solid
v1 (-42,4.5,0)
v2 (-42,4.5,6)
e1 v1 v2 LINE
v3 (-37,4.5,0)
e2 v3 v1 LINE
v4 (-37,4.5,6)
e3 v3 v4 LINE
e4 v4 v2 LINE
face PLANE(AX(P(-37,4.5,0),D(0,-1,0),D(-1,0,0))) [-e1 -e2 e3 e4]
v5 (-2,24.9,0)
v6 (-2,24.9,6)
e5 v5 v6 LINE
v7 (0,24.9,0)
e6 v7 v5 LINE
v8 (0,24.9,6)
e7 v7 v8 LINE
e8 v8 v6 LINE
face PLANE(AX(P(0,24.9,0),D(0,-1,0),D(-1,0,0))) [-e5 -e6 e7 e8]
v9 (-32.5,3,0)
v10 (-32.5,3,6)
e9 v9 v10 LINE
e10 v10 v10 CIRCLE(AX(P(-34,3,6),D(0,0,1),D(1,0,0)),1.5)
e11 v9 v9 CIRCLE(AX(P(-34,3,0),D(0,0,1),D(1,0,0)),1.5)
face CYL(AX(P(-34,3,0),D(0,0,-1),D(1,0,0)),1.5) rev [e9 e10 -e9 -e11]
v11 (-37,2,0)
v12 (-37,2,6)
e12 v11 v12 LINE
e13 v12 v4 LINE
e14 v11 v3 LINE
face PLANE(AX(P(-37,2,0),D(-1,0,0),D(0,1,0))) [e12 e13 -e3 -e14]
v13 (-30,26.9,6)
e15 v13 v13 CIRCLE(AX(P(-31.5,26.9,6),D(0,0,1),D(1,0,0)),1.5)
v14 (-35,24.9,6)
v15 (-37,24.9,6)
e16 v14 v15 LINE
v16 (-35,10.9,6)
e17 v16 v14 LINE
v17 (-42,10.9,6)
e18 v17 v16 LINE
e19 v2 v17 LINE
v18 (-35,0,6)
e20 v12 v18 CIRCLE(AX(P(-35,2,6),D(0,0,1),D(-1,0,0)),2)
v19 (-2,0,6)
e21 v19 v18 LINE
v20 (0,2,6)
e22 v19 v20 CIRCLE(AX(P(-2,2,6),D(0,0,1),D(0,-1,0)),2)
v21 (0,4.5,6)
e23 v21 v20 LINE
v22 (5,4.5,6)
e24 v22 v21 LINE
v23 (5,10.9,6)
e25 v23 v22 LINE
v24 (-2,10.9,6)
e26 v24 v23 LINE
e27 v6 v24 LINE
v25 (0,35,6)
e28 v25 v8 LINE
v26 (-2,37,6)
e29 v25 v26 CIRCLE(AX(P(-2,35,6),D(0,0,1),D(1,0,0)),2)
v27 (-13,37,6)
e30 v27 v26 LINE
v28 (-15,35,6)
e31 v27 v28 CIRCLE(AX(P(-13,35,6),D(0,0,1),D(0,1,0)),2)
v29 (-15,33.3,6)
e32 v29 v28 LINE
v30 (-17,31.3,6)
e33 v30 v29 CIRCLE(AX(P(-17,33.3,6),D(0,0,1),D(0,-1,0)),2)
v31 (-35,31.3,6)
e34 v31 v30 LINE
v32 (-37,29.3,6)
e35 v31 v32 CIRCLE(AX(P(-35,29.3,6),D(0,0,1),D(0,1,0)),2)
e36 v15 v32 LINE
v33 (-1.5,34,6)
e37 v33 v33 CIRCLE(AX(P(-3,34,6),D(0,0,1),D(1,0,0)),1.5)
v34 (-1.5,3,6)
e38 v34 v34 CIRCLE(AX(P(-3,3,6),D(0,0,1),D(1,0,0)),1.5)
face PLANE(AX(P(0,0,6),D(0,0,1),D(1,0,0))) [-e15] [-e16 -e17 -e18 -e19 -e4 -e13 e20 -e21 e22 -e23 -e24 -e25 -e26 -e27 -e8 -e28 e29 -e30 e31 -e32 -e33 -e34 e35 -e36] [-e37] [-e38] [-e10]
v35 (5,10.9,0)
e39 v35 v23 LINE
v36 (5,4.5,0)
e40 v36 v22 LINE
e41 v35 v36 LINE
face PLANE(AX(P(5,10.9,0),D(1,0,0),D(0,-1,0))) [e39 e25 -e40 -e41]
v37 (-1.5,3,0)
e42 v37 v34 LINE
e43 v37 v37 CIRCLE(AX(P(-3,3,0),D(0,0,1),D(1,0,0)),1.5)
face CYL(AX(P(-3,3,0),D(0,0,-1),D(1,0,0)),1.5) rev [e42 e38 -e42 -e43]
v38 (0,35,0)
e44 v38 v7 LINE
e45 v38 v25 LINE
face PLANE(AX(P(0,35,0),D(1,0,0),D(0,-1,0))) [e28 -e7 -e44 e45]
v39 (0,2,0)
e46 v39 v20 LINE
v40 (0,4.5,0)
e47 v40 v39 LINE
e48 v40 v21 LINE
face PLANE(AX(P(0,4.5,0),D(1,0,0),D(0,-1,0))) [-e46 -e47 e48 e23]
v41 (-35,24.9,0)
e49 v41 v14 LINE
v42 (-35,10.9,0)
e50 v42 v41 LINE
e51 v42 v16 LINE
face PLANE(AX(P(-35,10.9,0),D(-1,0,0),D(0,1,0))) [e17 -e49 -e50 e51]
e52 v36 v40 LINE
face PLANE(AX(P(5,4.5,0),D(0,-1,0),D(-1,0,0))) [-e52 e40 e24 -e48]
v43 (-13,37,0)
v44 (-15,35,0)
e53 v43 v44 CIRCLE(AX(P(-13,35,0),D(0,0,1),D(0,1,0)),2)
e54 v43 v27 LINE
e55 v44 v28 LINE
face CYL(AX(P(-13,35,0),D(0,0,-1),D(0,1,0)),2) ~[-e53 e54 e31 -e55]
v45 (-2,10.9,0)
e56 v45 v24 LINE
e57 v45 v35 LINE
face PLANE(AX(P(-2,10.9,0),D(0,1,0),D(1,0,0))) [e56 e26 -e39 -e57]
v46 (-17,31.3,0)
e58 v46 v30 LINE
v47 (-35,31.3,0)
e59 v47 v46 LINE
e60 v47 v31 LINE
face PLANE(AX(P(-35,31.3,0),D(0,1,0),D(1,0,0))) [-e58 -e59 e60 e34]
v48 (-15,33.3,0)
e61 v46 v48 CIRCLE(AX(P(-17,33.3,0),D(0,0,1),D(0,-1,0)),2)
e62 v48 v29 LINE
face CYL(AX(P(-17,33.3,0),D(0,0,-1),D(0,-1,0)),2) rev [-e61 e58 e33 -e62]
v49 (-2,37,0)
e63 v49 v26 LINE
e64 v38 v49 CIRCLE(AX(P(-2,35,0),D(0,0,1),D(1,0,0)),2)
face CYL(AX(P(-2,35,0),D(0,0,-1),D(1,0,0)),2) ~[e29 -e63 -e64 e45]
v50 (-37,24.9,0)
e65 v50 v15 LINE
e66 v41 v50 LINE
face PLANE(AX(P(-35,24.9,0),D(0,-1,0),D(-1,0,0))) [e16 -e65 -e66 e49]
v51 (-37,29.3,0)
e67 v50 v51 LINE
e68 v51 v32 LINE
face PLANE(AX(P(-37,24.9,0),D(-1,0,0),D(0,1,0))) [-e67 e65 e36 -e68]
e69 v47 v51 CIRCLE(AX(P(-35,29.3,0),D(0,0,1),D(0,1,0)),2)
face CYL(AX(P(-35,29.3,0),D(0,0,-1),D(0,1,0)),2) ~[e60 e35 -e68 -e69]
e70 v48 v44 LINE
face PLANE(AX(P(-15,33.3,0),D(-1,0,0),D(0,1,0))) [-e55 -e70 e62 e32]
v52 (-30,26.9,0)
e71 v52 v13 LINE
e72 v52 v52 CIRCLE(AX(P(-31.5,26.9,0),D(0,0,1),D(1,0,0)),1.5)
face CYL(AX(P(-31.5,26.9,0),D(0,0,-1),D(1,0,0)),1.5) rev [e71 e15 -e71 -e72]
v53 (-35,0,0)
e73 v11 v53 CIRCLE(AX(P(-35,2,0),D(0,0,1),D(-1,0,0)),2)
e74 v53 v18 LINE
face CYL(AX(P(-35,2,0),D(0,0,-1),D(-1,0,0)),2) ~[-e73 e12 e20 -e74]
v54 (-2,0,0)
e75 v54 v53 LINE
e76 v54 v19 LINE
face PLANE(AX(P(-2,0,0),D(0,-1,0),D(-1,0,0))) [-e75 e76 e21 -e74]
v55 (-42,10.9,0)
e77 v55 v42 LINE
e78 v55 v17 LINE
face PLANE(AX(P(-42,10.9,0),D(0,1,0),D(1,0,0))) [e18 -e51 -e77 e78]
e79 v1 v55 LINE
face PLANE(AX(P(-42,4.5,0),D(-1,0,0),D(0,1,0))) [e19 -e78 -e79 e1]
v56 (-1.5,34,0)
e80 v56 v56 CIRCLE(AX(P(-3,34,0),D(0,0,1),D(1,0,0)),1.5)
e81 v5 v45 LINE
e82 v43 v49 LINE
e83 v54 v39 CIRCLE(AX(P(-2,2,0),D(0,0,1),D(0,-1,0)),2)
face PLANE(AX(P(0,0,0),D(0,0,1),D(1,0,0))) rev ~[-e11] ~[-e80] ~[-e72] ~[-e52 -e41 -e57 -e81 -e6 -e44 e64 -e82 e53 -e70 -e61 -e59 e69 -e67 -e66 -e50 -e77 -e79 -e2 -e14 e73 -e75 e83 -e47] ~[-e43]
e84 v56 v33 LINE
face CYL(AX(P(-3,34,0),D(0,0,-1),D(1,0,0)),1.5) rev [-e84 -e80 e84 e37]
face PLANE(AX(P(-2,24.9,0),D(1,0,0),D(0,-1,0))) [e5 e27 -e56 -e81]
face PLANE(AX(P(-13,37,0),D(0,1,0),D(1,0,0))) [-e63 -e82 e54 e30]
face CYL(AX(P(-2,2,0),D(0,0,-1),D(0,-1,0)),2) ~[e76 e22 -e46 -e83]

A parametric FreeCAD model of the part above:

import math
import FreeCAD as App
import Part
import Sketcher

V = App.Vector
Q = App.Units.Quantity

doc = App.newDocument("Part")
params = doc.addObject("Spreadsheet::Sheet", "Params")
for row, (alias, value) in enumerate([
    ("sketch1_diameter", "3 mm"),
    ("sketch1_radius", "2 mm"),
    ("sketch1_width", "33 mm"),
    ("sketch1_width2", "5 mm"),
    ("sketch1_width3", "11 mm"),
    ("pad1_length", "6 mm"),
], start=1):
    params.set(f"A{row}", alias)
    params.set(f"B{row}", "=" + value)
    params.setAlias(f"B{row}", alias)

body = doc.addObject("PartDesign::Body", "Body")

sketch1 = body.newObject("Sketcher::SketchObject", "Sketch")
sketch1.AttachmentSupport = (doc.getObject("XY_Plane"), [""])
sketch1.MapMode = "FlatFace"
sketch1.addGeometry([
    Part.LineSegment(V(-35, 0, 0), V(-2, 0, 0)),
    Part.ArcOfCircle(Part.Circle(V(-2, 2, 0), V(0, 0, 1), 2), math.radians(-90), math.radians(0)),
    Part.LineSegment(V(0, 2, 0), V(0, 4.5, 0)),
    Part.LineSegment(V(0, 4.5, 0), V(5, 4.5, 0)),
    Part.LineSegment(V(5, 4.5, 0), V(5, 10.9, 0)),
    Part.LineSegment(V(5, 10.9, 0), V(-2, 10.9, 0)),
    Part.LineSegment(V(-2, 10.9, 0), V(-2, 24.9, 0)),
    Part.LineSegment(V(-2, 24.9, 0), V(0, 24.9, 0)),
    Part.LineSegment(V(0, 24.9, 0), V(0, 35, 0)),
    Part.ArcOfCircle(Part.Circle(V(-2, 35, 0), V(0, 0, 1), 2), math.radians(0), math.radians(90)),
    Part.LineSegment(V(-2, 37, 0), V(-13, 37, 0)),
    Part.ArcOfCircle(Part.Circle(V(-13, 35, 0), V(0, 0, 1), 2), math.radians(90), math.radians(180)),
    Part.LineSegment(V(-15, 35, 0), V(-15, 33.3, 0)),
    Part.ArcOfCircle(Part.Circle(V(-17, 33.3, 0), V(0, 0, 1), 2), math.radians(-90), math.radians(0)),
    Part.LineSegment(V(-17, 31.3, 0), V(-35, 31.3, 0)),
    Part.ArcOfCircle(Part.Circle(V(-35, 29.3, 0), V(0, 0, 1), 2), math.radians(90), math.radians(180)),
    Part.LineSegment(V(-37, 29.3, 0), V(-37, 24.9, 0)),
    Part.LineSegment(V(-37, 24.9, 0), V(-35, 24.9, 0)),
    Part.LineSegment(V(-35, 24.9, 0), V(-35, 10.9, 0)),
    Part.LineSegment(V(-35, 10.9, 0), V(-42, 10.9, 0)),
    Part.LineSegment(V(-42, 10.9, 0), V(-42, 4.5, 0)),
    Part.LineSegment(V(-42, 4.5, 0), V(-37, 4.5, 0)),
    Part.LineSegment(V(-37, 4.5, 0), V(-37, 2, 0)),
    Part.ArcOfCircle(Part.Circle(V(-35, 2, 0), V(0, 0, 1), 2), math.radians(180), math.radians(270)),
    Part.Circle(V(-34, 3, 0), V(0, 0, 1), 1.5),
    Part.Circle(V(-3, 3, 0), V(0, 0, 1), 1.5),
    Part.Circle(V(-31.5, 26.9, 0), V(0, 0, 1), 1.5),
    Part.Circle(V(-3, 34, 0), V(0, 0, 1), 1.5),
], False)
sketch1.addConstraint([
    Sketcher.Constraint("Tangent", 0, 2, 1, 1),
    Sketcher.Constraint("Tangent", 1, 2, 2, 1),
    Sketcher.Constraint("Coincident", 2, 2, 3, 1),
    Sketcher.Constraint("Coincident", 3, 2, 4, 1),
    Sketcher.Constraint("Coincident", 4, 2, 5, 1),
    Sketcher.Constraint("Coincident", 5, 2, 6, 1),
    Sketcher.Constraint("Coincident", 6, 2, 7, 1),
    Sketcher.Constraint("Coincident", 7, 2, 8, 1),
    Sketcher.Constraint("Tangent", 8, 2, 9, 1),
    Sketcher.Constraint("Tangent", 9, 2, 10, 1),
    Sketcher.Constraint("Tangent", 10, 2, 11, 1),
    Sketcher.Constraint("Tangent", 11, 2, 12, 1),
    Sketcher.Constraint("Tangent", 12, 2, 13, 2),
    Sketcher.Constraint("Tangent", 13, 1, 14, 1),
    Sketcher.Constraint("Tangent", 14, 2, 15, 1),
    Sketcher.Constraint("Tangent", 15, 2, 16, 1),
    Sketcher.Constraint("Coincident", 16, 2, 17, 1),
    Sketcher.Constraint("Coincident", 17, 2, 18, 1),
    Sketcher.Constraint("Coincident", 18, 2, 19, 1),
    Sketcher.Constraint("Coincident", 19, 2, 20, 1),
    Sketcher.Constraint("Coincident", 20, 2, 21, 1),
    Sketcher.Constraint("Coincident", 21, 2, 22, 1),
    Sketcher.Constraint("Tangent", 22, 2, 23, 1),
    Sketcher.Constraint("Tangent", 23, 2, 0, 1),
    Sketcher.Constraint("Horizontal", 0),
    Sketcher.Constraint("Vertical", 2),
    Sketcher.Constraint("Horizontal", 3),
    Sketcher.Constraint("Vertical", 4),
    Sketcher.Constraint("Horizontal", 5),
    Sketcher.Constraint("Vertical", 6),
    Sketcher.Constraint("Horizontal", 7),
    Sketcher.Constraint("Vertical", 8),
    Sketcher.Constraint("Horizontal", 10),
    Sketcher.Constraint("Vertical", 12),
    Sketcher.Constraint("Horizontal", 14),
    Sketcher.Constraint("Vertical", 16),
    Sketcher.Constraint("Horizontal", 17),
    Sketcher.Constraint("Vertical", 18),
    Sketcher.Constraint("Horizontal", 19),
    Sketcher.Constraint("Vertical", 20),
    Sketcher.Constraint("Horizontal", 21),
    Sketcher.Constraint("Vertical", 22),
    Sketcher.Constraint("Equal", 1, 9),
    Sketcher.Constraint("Equal", 9, 11),
    Sketcher.Constraint("Equal", 11, 13),
    Sketcher.Constraint("Equal", 13, 15),
    Sketcher.Constraint("Equal", 15, 23),
    Sketcher.Constraint("Equal", 24, 25),
    Sketcher.Constraint("Equal", 25, 26),
    Sketcher.Constraint("Equal", 26, 27),
    Sketcher.Constraint("PointOnObject", 0, 2, -1),
    Sketcher.Constraint("PointOnObject", 1, 2, -2),
    Sketcher.Constraint("PointOnObject", 7, 2, -2),
    Sketcher.Constraint("Horizontal", 24, 3, 25, 3),
    Sketcher.Constraint("Horizontal", 7, 2, 16, 2),
    Sketcher.Constraint("Horizontal", 5, 2, 18, 2),
    Sketcher.Constraint("Horizontal", 3, 2, 20, 2),
    Sketcher.Constraint("Vertical", 15, 3, 23, 3),
    Sketcher.Constraint("Vertical", 25, 3, 27, 3),
    Sketcher.Constraint("Vertical", 0, 2, 5, 2),
    Sketcher.Constraint("Vertical", 14, 2, 17, 2),
    Sketcher.Constraint("Equal", 5, 19),
    Sketcher.Constraint("Diameter", 24, Q("3 mm")),
    Sketcher.Constraint("Radius", 1, Q("2 mm")),
    Sketcher.Constraint("DistanceX", 0, 1, 0, 2, Q("33 mm")),
    Sketcher.Constraint("DistanceX", 3, 1, 3, 2, Q("5 mm")),
    Sketcher.Constraint("DistanceX", 10, 2, 10, 1, Q("11 mm")),
    Sketcher.Constraint("DistanceY", 6, 1, 6, 2, Q("14 mm")),
    Sketcher.Constraint("DistanceY", 2, 1, 2, 2, Q("2.5 mm")),
    Sketcher.Constraint("DistanceY", 4, 1, 4, 2, Q("6.4 mm")),
    Sketcher.Constraint("DistanceY", 8, 1, 8, 2, Q("10.1 mm")),
    Sketcher.Constraint("DistanceY", 12, 2, 12, 1, Q("1.7 mm")),
    Sketcher.Constraint("DistanceX", 24, 3, -1, 1, Q("34 mm")),
    Sketcher.Constraint("DistanceY", -1, 1, 24, 3, Q("3 mm")),
    Sketcher.Constraint("DistanceX", 25, 3, -1, 1, Q("3 mm")),
    Sketcher.Constraint("DistanceY", -1, 1, 27, 3, Q("34 mm")),
    Sketcher.Constraint("DistanceY", 16, 2, 26, 3, Q("2 mm")),
    Sketcher.Constraint("DistanceX", 26, 3, -1, 1, Q("31.5 mm")),
])
sketch1.setExpression("Constraints[62]", "Params.sketch1_diameter")
sketch1.setExpression("Constraints[63]", "Params.sketch1_radius")
sketch1.setExpression("Constraints[64]", "Params.sketch1_width")
sketch1.setExpression("Constraints[65]", "Params.sketch1_width2")
sketch1.setExpression("Constraints[66]", "Params.sketch1_width3")
pad1 = body.newObject("PartDesign::Pad", "Pad")
pad1.Profile = sketch1
pad1.setExpression("Length", "Params.pad1_length")

doc.recompute()
